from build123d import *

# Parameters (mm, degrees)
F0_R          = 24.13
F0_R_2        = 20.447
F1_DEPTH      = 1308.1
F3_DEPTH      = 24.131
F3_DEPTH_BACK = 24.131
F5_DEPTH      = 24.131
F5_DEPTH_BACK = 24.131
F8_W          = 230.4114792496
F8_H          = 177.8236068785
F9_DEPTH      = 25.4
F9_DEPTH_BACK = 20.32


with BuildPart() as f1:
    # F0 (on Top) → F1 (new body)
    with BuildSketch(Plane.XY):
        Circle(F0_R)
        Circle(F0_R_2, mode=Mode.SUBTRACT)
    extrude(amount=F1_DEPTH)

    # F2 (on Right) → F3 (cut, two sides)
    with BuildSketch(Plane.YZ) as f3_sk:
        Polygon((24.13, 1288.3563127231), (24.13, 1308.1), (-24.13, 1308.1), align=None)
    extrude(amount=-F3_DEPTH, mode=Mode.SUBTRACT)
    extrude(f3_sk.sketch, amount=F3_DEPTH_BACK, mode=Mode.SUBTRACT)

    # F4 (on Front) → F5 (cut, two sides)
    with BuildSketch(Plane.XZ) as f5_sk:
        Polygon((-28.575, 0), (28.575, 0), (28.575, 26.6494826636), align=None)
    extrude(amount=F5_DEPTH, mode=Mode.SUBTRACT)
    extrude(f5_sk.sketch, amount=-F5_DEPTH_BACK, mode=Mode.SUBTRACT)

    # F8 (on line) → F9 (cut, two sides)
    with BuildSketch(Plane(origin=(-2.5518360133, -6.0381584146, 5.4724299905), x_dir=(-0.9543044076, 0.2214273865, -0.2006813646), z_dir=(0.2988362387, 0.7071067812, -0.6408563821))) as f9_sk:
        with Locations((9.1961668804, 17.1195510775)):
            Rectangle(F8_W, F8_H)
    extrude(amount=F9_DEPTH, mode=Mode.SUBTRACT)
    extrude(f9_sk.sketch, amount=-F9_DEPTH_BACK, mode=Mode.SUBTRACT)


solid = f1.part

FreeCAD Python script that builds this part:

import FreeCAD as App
import Part
import Sketcher
from FreeCAD import Vector
Q = App.Units.Quantity

doc = App.newDocument("Part")
body = doc.addObject("PartDesign::Body", "Body")

sketch1 = doc.addObject("Sketcher::SketchObject", "Sketch")
body.addObject(sketch1)
sketch1.AttachmentSupport = (doc.XY_Plane, [""])
sketch1.MapMode = "FlatFace"
sketch1.addGeometry(Part.Circle(Vector(0, 0, 0), Vector(0, 0, 1), 24), False)
sketch1.addGeometry(Part.Circle(Vector(0, 0, 0), Vector(0, 0, 1), 20), False)
sketch1.addConstraint(Sketcher.Constraint("Coincident", 0, 3, -1, 1))
sketch1.addConstraint(Sketcher.Constraint("Coincident", 1, 3, -1, 1))
sketch1.addConstraint(Sketcher.Constraint("Diameter", 0, Q("1.9 in")))
sketch1.addConstraint(Sketcher.Constraint("Diameter", 1, Q("1.61 in")))
pad1 = doc.addObject("PartDesign::Pad", "Pad")
body.addObject(pad1)
pad1.Profile = sketch1
pad1.Length = Q("51.5 in")

sketch2 = doc.addObject("Sketcher::SketchObject", "Sketch001")
body.addObject(sketch2)
sketch2.AttachmentSupport = (doc.YZ_Plane, [""])
sketch2.MapMode = "FlatFace"
sketch2.addGeometry(Part.LineSegment(Vector(24, 1288, 0), Vector(24, 1308, 0)), False)
sketch2.addGeometry(Part.LineSegment(Vector(24, 1308, 0), Vector(-24, 1308, 0)), False)
sketch2.addGeometry(Part.LineSegment(Vector(-24, 1308, 0), Vector(24, 1288, 0)), False)
sketch2.addConstraint(Sketcher.Constraint("Coincident", 0, 2, 1, 1))
sketch2.addConstraint(Sketcher.Constraint("Coincident", 1, 2, 2, 1))
sketch2.addConstraint(Sketcher.Constraint("Coincident", 2, 2, 0, 1))
sketch2.addConstraint(Sketcher.Constraint("Vertical", 0))
sketch2.addConstraint(Sketcher.Constraint("Horizontal", 1))
sketch2.addConstraint(Sketcher.Constraint("DistanceX", 1, 2, 1, 1, Q("1.9 in")))
sketch2.addConstraint(Sketcher.Constraint("DistanceY", -1, 1, 0, 2, Q("51.5 in")))
sketch2.addConstraint(Sketcher.Constraint("DistanceX", -1, 1, 0, 2, Q("0.95 in")))
sketch2.addConstraint(Sketcher.Constraint("Angle", 2, Q("-22.25 deg")))
pocket1 = doc.addObject("PartDesign::Pocket", "Pocket")
body.addObject(pocket1)
pocket1.Profile = sketch2
pocket1.Type = "ThroughAll"
pocket1.Midplane = True

sketch3 = doc.addObject("Sketcher::SketchObject", "Sketch002")
body.addObject(sketch3)
sketch3.AttachmentSupport = (doc.XZ_Plane, [""])
sketch3.MapMode = "FlatFace"
sketch3.addGeometry(Part.LineSegment(Vector(-29, 0, 0), Vector(29, 0, 0)), False)
sketch3.addGeometry(Part.LineSegment(Vector(29, 0, 0), Vector(29, 27, 0)), False)
sketch3.addGeometry(Part.LineSegment(Vector(29, 27, 0), Vector(-29, 0, 0)), False)
sketch3.addConstraint(Sketcher.Constraint("Coincident", 0, 2, 1, 1))
sketch3.addConstraint(Sketcher.Constraint("Coincident", 1, 2, 2, 1))
sketch3.addConstraint(Sketcher.Constraint("Coincident", 2, 2, 0, 1))
sketch3.addConstraint(Sketcher.Constraint("Horizontal", 0))
sketch3.addConstraint(Sketcher.Constraint("Vertical", 1))
sketch3.addConstraint(Sketcher.Constraint("Symmetric", 0, 2, 2, 2, -1, 1))
sketch3.addConstraint(Sketcher.Constraint("Angle", 2, Q("-155 deg")))
sketch3.addConstraint(Sketcher.Constraint("DistanceX", 0, 1, 0, 2, Q("2.25 in")))
pocket2 = doc.addObject("PartDesign::Pocket", "Pocket001")
body.addObject(pocket2)
pocket2.Profile = sketch3
pocket2.Type = "ThroughAll"
pocket2.Midplane = True

sketch4 = doc.addObject("Sketcher::SketchObject", "Sketch003")
body.addObject(sketch4)
sketch4.Placement = App.Placement(Vector(-2.551836, -6.038158, 5.47243), App.Rotation(Vector(-0.954304408, 0.221427386, -0.200681365), Vector(-0.000000001, 0.671542935, 0.740965645), Vector(0.298836239, 0.707106781, -0.640856382), "ZXY"))
sketch4.addGeometry(Part.LineSegment(Vector(-106, 106, 0), Vector(-106, -72, 0)), False)
sketch4.addGeometry(Part.LineSegment(Vector(-106, -72, 0), Vector(124, -72, 0)), False)
sketch4.addGeometry(Part.LineSegment(Vector(124, -72, 0), Vector(124, 106, 0)), False)
sketch4.addGeometry(Part.LineSegment(Vector(124, 106, 0), Vector(-106, 106, 0)), False)
sketch4.addConstraint(Sketcher.Constraint("Coincident", 0, 2, 1, 1))
sketch4.addConstraint(Sketcher.Constraint("Coincident", 1, 2, 2, 1))
sketch4.addConstraint(Sketcher.Constraint("Coincident", 2, 2, 3, 1))
sketch4.addConstraint(Sketcher.Constraint("Coincident", 3, 2, 0, 1))
sketch4.addConstraint(Sketcher.Constraint("Vertical", 0))
sketch4.addConstraint(Sketcher.Constraint("Horizontal", 1))
sketch4.addConstraint(Sketcher.Constraint("Vertical", 2))
sketch4.addConstraint(Sketcher.Constraint("Horizontal", 3))
sketch4.addConstraint(Sketcher.Constraint("DistanceX", 1, 1, 1, 2, 230.411479))
sketch4.addConstraint(Sketcher.Constraint("DistanceY", 0, 2, 0, 1, 177.823607))
sketch4.addConstraint(Sketcher.Constraint("DistanceX", 0, 2, -1, 1, 106.009573))
sketch4.addConstraint(Sketcher.Constraint("DistanceY", 0, 2, -1, 1, 71.792252))
pocket3 = doc.addObject("PartDesign::Pocket", "Pocket002")
body.addObject(pocket3)
pocket3.Profile = sketch4
pocket3.Type = "TwoLengths"
pocket3.Length = Q("1 in")
pocket3.Length2 = Q("0.8 in")
pocket3.Reversed = True

doc.recompute()
